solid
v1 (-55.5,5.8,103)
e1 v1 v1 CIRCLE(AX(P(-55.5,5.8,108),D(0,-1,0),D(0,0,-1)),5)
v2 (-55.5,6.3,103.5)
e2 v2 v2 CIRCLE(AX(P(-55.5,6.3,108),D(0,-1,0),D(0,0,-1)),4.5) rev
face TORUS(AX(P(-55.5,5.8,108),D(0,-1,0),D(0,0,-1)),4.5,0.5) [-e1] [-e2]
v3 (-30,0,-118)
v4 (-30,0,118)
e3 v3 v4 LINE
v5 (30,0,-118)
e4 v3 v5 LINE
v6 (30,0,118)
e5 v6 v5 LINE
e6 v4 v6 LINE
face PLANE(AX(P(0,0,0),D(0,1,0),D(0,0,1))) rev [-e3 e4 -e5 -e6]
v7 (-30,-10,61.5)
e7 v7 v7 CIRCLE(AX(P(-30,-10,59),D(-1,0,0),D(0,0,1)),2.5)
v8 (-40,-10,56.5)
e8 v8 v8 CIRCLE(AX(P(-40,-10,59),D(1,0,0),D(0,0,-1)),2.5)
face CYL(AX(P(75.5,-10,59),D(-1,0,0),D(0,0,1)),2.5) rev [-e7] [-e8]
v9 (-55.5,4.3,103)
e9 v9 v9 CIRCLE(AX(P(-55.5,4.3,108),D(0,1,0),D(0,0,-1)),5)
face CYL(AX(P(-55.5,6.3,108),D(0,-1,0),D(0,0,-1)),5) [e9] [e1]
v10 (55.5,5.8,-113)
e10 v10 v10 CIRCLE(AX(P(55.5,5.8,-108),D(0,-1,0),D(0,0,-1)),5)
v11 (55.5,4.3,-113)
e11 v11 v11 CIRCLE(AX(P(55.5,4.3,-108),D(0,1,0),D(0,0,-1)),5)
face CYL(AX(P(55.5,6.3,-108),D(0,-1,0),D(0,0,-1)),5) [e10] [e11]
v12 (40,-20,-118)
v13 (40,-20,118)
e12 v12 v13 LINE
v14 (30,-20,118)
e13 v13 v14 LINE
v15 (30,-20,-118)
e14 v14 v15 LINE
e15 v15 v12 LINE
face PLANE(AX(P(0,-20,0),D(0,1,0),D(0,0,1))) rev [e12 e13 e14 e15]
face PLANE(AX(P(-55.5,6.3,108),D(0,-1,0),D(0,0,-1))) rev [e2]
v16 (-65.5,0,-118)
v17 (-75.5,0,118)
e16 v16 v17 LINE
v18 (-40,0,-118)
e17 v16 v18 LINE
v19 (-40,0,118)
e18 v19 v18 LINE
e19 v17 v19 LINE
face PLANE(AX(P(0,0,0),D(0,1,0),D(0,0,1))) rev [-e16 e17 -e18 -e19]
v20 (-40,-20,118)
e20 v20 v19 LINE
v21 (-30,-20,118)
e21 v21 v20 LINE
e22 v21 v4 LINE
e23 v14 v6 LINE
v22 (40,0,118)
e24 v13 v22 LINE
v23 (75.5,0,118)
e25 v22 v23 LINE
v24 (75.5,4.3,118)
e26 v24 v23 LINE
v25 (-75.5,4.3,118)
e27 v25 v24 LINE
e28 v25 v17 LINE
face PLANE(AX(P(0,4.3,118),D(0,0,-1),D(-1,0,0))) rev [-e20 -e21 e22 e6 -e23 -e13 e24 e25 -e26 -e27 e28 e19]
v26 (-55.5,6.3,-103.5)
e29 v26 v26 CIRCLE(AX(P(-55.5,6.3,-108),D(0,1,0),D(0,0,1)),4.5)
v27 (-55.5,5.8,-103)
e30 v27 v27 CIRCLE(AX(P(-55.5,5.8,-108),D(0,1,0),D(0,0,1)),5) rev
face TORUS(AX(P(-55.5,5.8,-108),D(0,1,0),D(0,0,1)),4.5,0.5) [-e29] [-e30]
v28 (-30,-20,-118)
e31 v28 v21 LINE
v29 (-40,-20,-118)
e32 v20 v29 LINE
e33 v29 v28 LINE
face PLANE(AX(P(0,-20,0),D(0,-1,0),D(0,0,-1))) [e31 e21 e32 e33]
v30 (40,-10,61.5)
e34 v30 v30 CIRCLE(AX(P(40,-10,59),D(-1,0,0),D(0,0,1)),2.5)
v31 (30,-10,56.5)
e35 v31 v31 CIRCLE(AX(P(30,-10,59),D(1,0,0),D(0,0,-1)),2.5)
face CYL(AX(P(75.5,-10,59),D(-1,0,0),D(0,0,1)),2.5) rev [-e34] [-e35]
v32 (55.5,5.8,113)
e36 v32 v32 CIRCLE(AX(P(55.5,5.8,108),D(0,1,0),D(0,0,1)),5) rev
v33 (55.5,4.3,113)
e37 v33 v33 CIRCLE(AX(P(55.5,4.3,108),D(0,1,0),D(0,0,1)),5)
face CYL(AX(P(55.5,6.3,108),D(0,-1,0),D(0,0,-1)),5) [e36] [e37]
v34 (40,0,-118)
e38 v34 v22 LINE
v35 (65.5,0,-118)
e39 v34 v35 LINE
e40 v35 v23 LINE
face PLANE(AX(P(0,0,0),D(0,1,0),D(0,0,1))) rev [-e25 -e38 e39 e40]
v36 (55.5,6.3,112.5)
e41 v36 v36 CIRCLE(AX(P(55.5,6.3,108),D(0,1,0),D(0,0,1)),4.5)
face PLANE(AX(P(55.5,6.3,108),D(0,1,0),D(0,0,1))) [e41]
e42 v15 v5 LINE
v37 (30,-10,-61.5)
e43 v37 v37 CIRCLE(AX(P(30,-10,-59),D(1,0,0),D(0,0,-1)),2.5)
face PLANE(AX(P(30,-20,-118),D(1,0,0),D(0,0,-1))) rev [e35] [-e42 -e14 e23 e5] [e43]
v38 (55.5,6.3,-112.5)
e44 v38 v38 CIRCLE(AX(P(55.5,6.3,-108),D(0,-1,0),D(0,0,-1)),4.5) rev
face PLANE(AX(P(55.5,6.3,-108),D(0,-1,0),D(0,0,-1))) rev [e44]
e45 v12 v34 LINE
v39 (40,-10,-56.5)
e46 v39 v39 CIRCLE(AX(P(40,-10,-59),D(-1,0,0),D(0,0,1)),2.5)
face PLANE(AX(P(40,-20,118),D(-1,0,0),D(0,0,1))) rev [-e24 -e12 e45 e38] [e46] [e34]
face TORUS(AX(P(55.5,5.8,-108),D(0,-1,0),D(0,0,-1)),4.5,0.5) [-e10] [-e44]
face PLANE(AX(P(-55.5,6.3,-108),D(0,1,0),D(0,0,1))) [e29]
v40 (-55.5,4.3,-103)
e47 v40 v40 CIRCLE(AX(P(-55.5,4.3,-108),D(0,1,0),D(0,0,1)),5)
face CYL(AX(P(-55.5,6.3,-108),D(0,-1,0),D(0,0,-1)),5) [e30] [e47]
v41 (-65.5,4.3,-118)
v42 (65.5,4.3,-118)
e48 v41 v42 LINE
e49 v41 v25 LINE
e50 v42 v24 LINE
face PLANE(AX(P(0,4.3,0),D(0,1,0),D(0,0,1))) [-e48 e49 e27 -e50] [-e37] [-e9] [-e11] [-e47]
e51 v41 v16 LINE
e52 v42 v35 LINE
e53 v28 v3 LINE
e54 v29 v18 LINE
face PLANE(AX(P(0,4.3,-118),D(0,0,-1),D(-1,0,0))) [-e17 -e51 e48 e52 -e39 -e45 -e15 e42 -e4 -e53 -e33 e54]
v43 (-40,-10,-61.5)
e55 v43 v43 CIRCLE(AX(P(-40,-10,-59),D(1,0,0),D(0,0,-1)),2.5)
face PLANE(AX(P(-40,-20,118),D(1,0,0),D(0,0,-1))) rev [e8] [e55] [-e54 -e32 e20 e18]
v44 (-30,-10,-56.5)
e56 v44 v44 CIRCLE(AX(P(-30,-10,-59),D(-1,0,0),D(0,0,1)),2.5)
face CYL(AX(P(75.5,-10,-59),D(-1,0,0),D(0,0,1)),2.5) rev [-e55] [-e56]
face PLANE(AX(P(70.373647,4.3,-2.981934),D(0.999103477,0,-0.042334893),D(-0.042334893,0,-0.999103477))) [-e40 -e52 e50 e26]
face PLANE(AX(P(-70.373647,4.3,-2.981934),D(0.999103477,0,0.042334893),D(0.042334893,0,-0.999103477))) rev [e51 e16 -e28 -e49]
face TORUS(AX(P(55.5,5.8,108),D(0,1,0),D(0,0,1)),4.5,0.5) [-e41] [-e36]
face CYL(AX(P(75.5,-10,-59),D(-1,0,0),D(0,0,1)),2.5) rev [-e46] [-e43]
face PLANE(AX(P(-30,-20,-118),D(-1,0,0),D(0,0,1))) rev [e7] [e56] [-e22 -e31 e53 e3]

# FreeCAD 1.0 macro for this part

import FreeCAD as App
import Part
import Sketcher
from FreeCAD import Vector
Q = App.Units.Quantity


def edges_at(feature, points):
    """Names of the edges that pass closest to the given points."""
    edges = feature.Shape.Edges
    near = lambda p: min(range(len(edges)), key=lambda i: edges[i].distToShape(Part.Vertex(*p))[0])
    return sorted({f"Edge{near(p) + 1}" for p in points})

doc = App.newDocument("Part")
body = doc.addObject("PartDesign::Body", "Body")

# Sketch on XZ plane
sketch1 = body.newObject("Sketcher::SketchObject", "Sketch")
sketch1.AttachmentSupport = (doc.getObject("XZ_Plane"), [""])
sketch1.MapMode = "FlatFace"
sketch1.addGeometry(Part.LineSegment(Vector(-76, 118, 0), Vector(76, 118, 0)), False)
sketch1.addGeometry(Part.LineSegment(Vector(76, 118, 0), Vector(66, -118, 0)), False)
sketch1.addGeometry(Part.LineSegment(Vector(66, -118, 0), Vector(-66, -118, 0)), False)
sketch1.addGeometry(Part.LineSegment(Vector(-66, -118, 0), Vector(-76, 118, 0)), False)
sketch1.addConstraint(Sketcher.Constraint("Coincident", 0, 2, 1, 1))
sketch1.addConstraint(Sketcher.Constraint("Coincident", 1, 2, 2, 1))
sketch1.addConstraint(Sketcher.Constraint("Coincident", 2, 2, 3, 1))
sketch1.addConstraint(Sketcher.Constraint("Coincident", 3, 2, 0, 1))
sketch1.addConstraint(Sketcher.Constraint("Horizontal", 0))
sketch1.addConstraint(Sketcher.Constraint("Horizontal", 2))
sketch1.addConstraint(Sketcher.Constraint("Equal", 1, 3))
sketch1.addConstraint(Sketcher.Constraint("DistanceX", 0, 1, 0, 2, Q("151 mm")))
sketch1.addConstraint(Sketcher.Constraint("DistanceX", 2, 2, 2, 1, Q("131 mm")))
sketch1.addConstraint(Sketcher.Constraint("DistanceY", -1, 1, 0, 2, Q("118 mm")))
sketch1.addConstraint(Sketcher.Constraint("DistanceY", 1, 2, -1, 1, Q("118 mm")))
sketch1.addConstraint(Sketcher.Constraint("DistanceX", -1, 1, 0, 2, Q("75.5 mm")))
pad1 = body.newObject("PartDesign::Pad", "Pad")
pad1.Profile = sketch1
pad1.Length = 4.3
pad1.Reversed = True

# Sketch on XZ plane
sketch2 = body.newObject("Sketcher::SketchObject", "Sketch001")
sketch2.AttachmentSupport = (doc.getObject("XZ_Plane"), [""])
sketch2.MapMode = "FlatFace"
sketch2.addGeometry(Part.LineSegment(Vector(-40, 118, 0), Vector(-40, -118, 0)), False)
sketch2.addGeometry(Part.LineSegment(Vector(-40, -118, 0), Vector(-30, -118, 0)), False)
sketch2.addGeometry(Part.LineSegment(Vector(-30, -118, 0), Vector(-30, 118, 0)), False)
sketch2.addGeometry(Part.LineSegment(Vector(-30, 118, 0), Vector(-40, 118, 0)), False)
sketch2.addGeometry(Part.LineSegment(Vector(30, 118, 0), Vector(30, -118, 0)), False)
sketch2.addGeometry(Part.LineSegment(Vector(30, -118, 0), Vector(40, -118, 0)), False)
sketch2.addGeometry(Part.LineSegment(Vector(40, -118, 0), Vector(40, 118, 0)), False)
sketch2.addGeometry(Part.LineSegment(Vector(40, 118, 0), Vector(30, 118, 0)), False)
sketch2.addConstraint(Sketcher.Constraint("Coincident", 0, 2, 1, 1))
sketch2.addConstraint(Sketcher.Constraint("Coincident", 1, 2, 2, 1))
sketch2.addConstraint(Sketcher.Constraint("Coincident", 2, 2, 3, 1))
sketch2.addConstraint(Sketcher.Constraint("Coincident", 3, 2, 0, 1))
sketch2.addConstraint(Sketcher.Constraint("Coincident", 4, 2, 5, 1))
sketch2.addConstraint(Sketcher.Constraint("Coincident", 5, 2, 6, 1))
sketch2.addConstraint(Sketcher.Constraint("Coincident", 6, 2, 7, 1))
sketch2.addConstraint(Sketcher.Constraint("Coincident", 7, 2, 4, 1))
sketch2.addConstraint(Sketcher.Constraint("Vertical", 0))
sketch2.addConstraint(Sketcher.Constraint("Horizontal", 1))
sketch2.addConstraint(Sketcher.Constraint("Vertical", 2))
sketch2.addConstraint(Sketcher.Constraint("Horizontal", 3))
sketch2.addConstraint(Sketcher.Constraint("Vertical", 4))
sketch2.addConstraint(Sketcher.Constraint("Horizontal", 5))
sketch2.addConstraint(Sketcher.Constraint("Vertical", 6))
sketch2.addConstraint(Sketcher.Constraint("Horizontal", 7))
sketch2.addConstraint(Sketcher.Constraint("Symmetric", 2, 2, 4, 2, -1, 1))
sketch2.addConstraint(Sketcher.Constraint("Symmetric", 0, 2, 6, 2, -1, 1))
sketch2.addConstraint(Sketcher.Constraint("Horizontal", 1, 2, 4, 2))
sketch2.addConstraint(Sketcher.Constraint("DistanceX", 1, 1, 1, 2, Q("10 mm")))
sketch2.addConstraint(Sketcher.Constraint("DistanceY", 0, 2, 0, 1, Q("236 mm")))
sketch2.addConstraint(Sketcher.Constraint("DistanceX", 0, 2, -1, 1, Q("40 mm")))
pad2 = body.newObject("PartDesign::Pad", "Pad001")
pad2.Profile = sketch2
pad2.Length = 20

# Sketch on XZ plane
sketch3 = body.newObject("Sketcher::SketchObject", "Sketch002")
sketch3.AttachmentSupport = (doc.getObject("XZ_Plane"), [""])
sketch3.MapMode = "FlatFace"
sketch3.AttachmentOffset = App.Placement(Vector(0, 0, -4.3), App.Rotation())
sketch3.addGeometry(Part.Circle(Vector(-56, -108, 0), Vector(0, 0, 1), 5), False)
sketch3.addGeometry(Part.Circle(Vector(56, -108, 0), Vector(0, 0, 1), 5), False)
sketch3.addGeometry(Part.Circle(Vector(-56, 108, 0), Vector(0, 0, 1), 5), False)
sketch3.addGeometry(Part.Circle(Vector(56, 108, 0), Vector(0, 0, 1), 5), False)
sketch3.addConstraint(Sketcher.Constraint("Equal", 0, 1))
sketch3.addConstraint(Sketcher.Constraint("Equal", 1, 2))
sketch3.addConstraint(Sketcher.Constraint("Equal", 2, 3))
sketch3.addConstraint(Sketcher.Constraint("Symmetric", 1, 3, 2, 3, -1, 1))
sketch3.addConstraint(Sketcher.Constraint("Symmetric", 0, 3, 3, 3, -1, 1))
sketch3.addConstraint(Sketcher.Constraint("Symmetric", 0, 3, 1, 3, -2))
sketch3.addConstraint(Sketcher.Constraint("Diameter", 0, Q("10 mm")))
sketch3.addConstraint(Sketcher.Constraint("DistanceY", 0, 3, -1, 1, Q("108 mm")))
sketch3.addConstraint(Sketcher.Constraint("DistanceX", 0, 3, 1, 3, Q("111 mm")))
pad3 = body.newObject("PartDesign::Pad", "Pad002")
pad3.Profile = sketch3
pad3.Length = 2
pad3.Reversed = True
doc.recompute()

fillet = body.newObject("PartDesign::Fillet", "Fillet")
fillet.Base = (pad3, edges_at(pad3, [
    (-60.5, 6.3, -108),
    (50.5, 6.3, -108),
    (-60.5, 6.3, 108),
    (50.5, 6.3, 108),
]))
fillet.Radius = 0.5

# Sketch on YZ plane
sketch4 = body.newObject("Sketcher::SketchObject", "Sketch003")
sketch4.AttachmentSupport = (doc.getObject("YZ_Plane"), [""])
sketch4.MapMode = "FlatFace"
sketch4.AttachmentOffset = App.Placement(Vector(0, 0, -40), App.Rotation())
sketch4.addGeometry(Part.Circle(Vector(-10, -59, 0), Vector(0, 0, 1), 2.5), False)
sketch4.addGeometry(Part.Circle(Vector(-10, 59, 0), Vector(0, 0, 1), 2.5), False)
sketch4.addConstraint(Sketcher.Constraint("Equal", 0, 1))
sketch4.addConstraint(Sketcher.Constraint("Symmetric", 0, 3, 1, 3, -1))
sketch4.addConstraint(Sketcher.Constraint("Diameter", 0, Q("5 mm")))
sketch4.addConstraint(Sketcher.Constraint("DistanceX", 0, 3, -1, 1, Q("10 mm")))
sketch4.addConstraint(Sketcher.Constraint("DistanceY", 0, 3, -1, 1, Q("59 mm")))
pocket1 = body.newObject("PartDesign::Pocket", "Pocket")
pocket1.Profile = sketch4
pocket1.Type = "ThroughAll"
pocket1.Midplane = True

doc.recompute()
